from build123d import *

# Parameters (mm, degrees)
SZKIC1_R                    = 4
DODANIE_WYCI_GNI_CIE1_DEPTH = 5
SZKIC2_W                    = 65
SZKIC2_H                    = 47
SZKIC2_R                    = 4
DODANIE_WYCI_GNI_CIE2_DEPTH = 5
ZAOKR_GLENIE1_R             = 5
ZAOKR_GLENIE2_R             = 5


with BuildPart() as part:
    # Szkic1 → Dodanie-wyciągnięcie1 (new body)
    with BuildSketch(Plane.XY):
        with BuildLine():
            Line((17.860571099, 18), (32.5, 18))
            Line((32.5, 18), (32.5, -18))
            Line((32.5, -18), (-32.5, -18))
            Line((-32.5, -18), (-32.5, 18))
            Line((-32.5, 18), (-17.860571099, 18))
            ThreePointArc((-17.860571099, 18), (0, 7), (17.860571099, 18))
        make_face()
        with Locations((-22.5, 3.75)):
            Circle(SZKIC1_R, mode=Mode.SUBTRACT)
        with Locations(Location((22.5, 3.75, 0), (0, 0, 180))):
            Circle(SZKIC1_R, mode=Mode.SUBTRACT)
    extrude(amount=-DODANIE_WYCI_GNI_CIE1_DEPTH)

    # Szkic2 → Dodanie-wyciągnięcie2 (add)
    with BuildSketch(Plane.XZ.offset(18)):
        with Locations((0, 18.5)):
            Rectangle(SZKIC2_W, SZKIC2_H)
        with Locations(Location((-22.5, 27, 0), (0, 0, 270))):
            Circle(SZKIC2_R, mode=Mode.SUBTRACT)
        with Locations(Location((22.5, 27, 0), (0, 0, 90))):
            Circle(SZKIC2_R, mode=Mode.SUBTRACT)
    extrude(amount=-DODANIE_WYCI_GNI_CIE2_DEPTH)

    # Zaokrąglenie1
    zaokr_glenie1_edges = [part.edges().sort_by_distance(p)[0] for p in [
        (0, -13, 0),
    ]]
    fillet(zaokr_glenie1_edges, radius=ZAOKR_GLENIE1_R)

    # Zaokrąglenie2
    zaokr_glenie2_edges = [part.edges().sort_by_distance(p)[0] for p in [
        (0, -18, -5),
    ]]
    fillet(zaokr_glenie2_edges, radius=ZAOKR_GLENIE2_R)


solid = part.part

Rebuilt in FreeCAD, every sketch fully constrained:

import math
import FreeCAD as App
import Part
import Sketcher
from FreeCAD import Vector
Q = App.Units.Quantity


def edges_at(feature, points):
    """Names of the edges that pass closest to the given points."""
    edges = feature.Shape.Edges
    near = lambda p: min(range(len(edges)), key=lambda i: edges[i].distToShape(Part.Vertex(*p))[0])
    return sorted({f"Edge{near(p) + 1}" for p in points})


def add_polygon(sketch, points):
    """Adds a closed chain of lines whose ends are joined by coincident constraints."""
    first, n = sketch.GeometryCount, len(points)
    for a, b in zip(points, points[1:] + points[:1]):
        sketch.addGeometry(Part.LineSegment(App.Vector(*a, 0), App.Vector(*b, 0)), False)
    for i in range(n):
        sketch.addConstraint(Sketcher.Constraint("Coincident", first + i, 2, first + (i + 1) % n, 1))

doc = App.newDocument("Part")
body = doc.addObject("PartDesign::Body", "Body")

sketch1 = doc.addObject("Sketcher::SketchObject", "Sketch")
body.addObject(sketch1)
sketch1.AttachmentSupport = (doc.XY_Plane, [""])
sketch1.MapMode = "FlatFace"
sketch1.addGeometry([
    Part.LineSegment(Vector(32.5, 18, 0), Vector(17.860571, 18, 0)),
    Part.ArcOfCircle(Part.Circle(Vector(0, 27, 0), Vector(0, 0, 1), 20), math.radians(-153.256316), math.radians(-26.743684)),
    Part.LineSegment(Vector(-17.860571, 18, 0), Vector(-32.5, 18, 0)),
    Part.LineSegment(Vector(-32.5, 18, 0), Vector(-32.5, -18, 0)),
    Part.LineSegment(Vector(-32.5, -18, 0), Vector(32.5, -18, 0)),
    Part.LineSegment(Vector(32.5, -18, 0), Vector(32.5, 18, 0)),
    Part.Circle(Vector(22.5, 3.75, 0), Vector(0, 0, 1), 4),
    Part.Circle(Vector(-22.5, 3.75, 0), Vector(0, 0, 1), 4),
], False)
sketch1.addConstraint([
    Sketcher.Constraint("Coincident", 0, 2, 1, 2),
    Sketcher.Constraint("Coincident", 1, 1, 2, 1),
    Sketcher.Constraint("Coincident", 2, 2, 3, 1),
    Sketcher.Constraint("Coincident", 3, 2, 4, 1),
    Sketcher.Constraint("Coincident", 4, 2, 5, 1),
    Sketcher.Constraint("Coincident", 5, 2, 0, 1),
    Sketcher.Constraint("Horizontal", 0),
    Sketcher.Constraint("Horizontal", 2),
    Sketcher.Constraint("Vertical", 3),
    Sketcher.Constraint("Horizontal", 4),
    Sketcher.Constraint("Vertical", 5),
    Sketcher.Constraint("Equal", 6, 7),
    Sketcher.Constraint("Symmetric", 2, 2, 4, 2, -1, 1),
    Sketcher.Constraint("Symmetric", 6, 3, 7, 3, -2),
    Sketcher.Constraint("Symmetric", 0, 2, 1, 1, -2),
    Sketcher.Constraint("Diameter", 6, Q("8 mm")),
    Sketcher.Constraint("Radius", 1, Q("20 mm")),
    Sketcher.Constraint("DistanceX", 4, 1, 4, 2, Q("65 mm")),
    Sketcher.Constraint("DistanceY", 3, 2, 3, 1, Q("36 mm")),
    Sketcher.Constraint("DistanceY", -1, 1, 1, 3, Q("27 mm")),
    Sketcher.Constraint("DistanceX", 7, 3, 6, 3, Q("45 mm")),
    Sketcher.Constraint("DistanceY", -1, 1, 6, 3, Q("3.75 mm")),
])
pad1 = doc.addObject("PartDesign::Pad", "Pad")
body.addObject(pad1)
pad1.Profile = sketch1
pad1.Length = 5
pad1.Reversed = True

sketch2 = doc.addObject("Sketcher::SketchObject", "Sketch001")
body.addObject(sketch2)
sketch2.AttachmentSupport = (doc.XZ_Plane, [""])
sketch2.MapMode = "FlatFace"
sketch2.AttachmentOffset = App.Placement(Vector(0, 0, 18), App.Rotation())
add_polygon(sketch2, [(-32.5, 42), (-32.5, -5), (32.5, -5), (32.5, 42)])
sketch2.addGeometry(Part.Circle(Vector(-22.5, 27, 0), Vector(0, 0, 1), 4), False)
sketch2.addGeometry(Part.Circle(Vector(22.5, 27, 0), Vector(0, 0, 1), 4), False)
sketch2.addConstraint([
    Sketcher.Constraint("Vertical", 0),
    Sketcher.Constraint("Horizontal", 1),
    Sketcher.Constraint("Vertical", 2),
    Sketcher.Constraint("Horizontal", 3),
    Sketcher.Constraint("Equal", 4, 5),
    Sketcher.Constraint("Symmetric", 4, 3, 5, 3, -2),
    Sketcher.Constraint("Diameter", 4, Q("8 mm")),
    Sketcher.Constraint("DistanceX", 1, 1, 1, 2, Q("65 mm")),
    Sketcher.Constraint("DistanceY", 0, 2, 0, 1, Q("47 mm")),
    Sketcher.Constraint("DistanceY", -1, 1, 4, 3, Q("27 mm")),
    Sketcher.Constraint("DistanceY", 0, 2, -1, 1, Q("5 mm")),
    Sketcher.Constraint("DistanceX", 4, 3, 5, 3, Q("45 mm")),
    Sketcher.Constraint("DistanceX", 0, 2, 4, 3, Q("10 mm")),
])
pad2 = doc.addObject("PartDesign::Pad", "Pad001")
body.addObject(pad2)
pad2.Profile = sketch2
pad2.Length = 5
pad2.Reversed = True
doc.recompute()

fillet = doc.addObject("PartDesign::Fillet", "Fillet")
body.addObject(fillet)
fillet.Base = (pad2, edges_at(pad2, [(0, -13, 0)]))
fillet.Radius = 5
doc.recompute()

fillet2 = doc.addObject("PartDesign::Fillet", "Fillet001")
body.addObject(fillet2)
fillet2.Base = (fillet, edges_at(fillet, [(0, -18, -5)]))
fillet2.Radius = 5

doc.recompute()
